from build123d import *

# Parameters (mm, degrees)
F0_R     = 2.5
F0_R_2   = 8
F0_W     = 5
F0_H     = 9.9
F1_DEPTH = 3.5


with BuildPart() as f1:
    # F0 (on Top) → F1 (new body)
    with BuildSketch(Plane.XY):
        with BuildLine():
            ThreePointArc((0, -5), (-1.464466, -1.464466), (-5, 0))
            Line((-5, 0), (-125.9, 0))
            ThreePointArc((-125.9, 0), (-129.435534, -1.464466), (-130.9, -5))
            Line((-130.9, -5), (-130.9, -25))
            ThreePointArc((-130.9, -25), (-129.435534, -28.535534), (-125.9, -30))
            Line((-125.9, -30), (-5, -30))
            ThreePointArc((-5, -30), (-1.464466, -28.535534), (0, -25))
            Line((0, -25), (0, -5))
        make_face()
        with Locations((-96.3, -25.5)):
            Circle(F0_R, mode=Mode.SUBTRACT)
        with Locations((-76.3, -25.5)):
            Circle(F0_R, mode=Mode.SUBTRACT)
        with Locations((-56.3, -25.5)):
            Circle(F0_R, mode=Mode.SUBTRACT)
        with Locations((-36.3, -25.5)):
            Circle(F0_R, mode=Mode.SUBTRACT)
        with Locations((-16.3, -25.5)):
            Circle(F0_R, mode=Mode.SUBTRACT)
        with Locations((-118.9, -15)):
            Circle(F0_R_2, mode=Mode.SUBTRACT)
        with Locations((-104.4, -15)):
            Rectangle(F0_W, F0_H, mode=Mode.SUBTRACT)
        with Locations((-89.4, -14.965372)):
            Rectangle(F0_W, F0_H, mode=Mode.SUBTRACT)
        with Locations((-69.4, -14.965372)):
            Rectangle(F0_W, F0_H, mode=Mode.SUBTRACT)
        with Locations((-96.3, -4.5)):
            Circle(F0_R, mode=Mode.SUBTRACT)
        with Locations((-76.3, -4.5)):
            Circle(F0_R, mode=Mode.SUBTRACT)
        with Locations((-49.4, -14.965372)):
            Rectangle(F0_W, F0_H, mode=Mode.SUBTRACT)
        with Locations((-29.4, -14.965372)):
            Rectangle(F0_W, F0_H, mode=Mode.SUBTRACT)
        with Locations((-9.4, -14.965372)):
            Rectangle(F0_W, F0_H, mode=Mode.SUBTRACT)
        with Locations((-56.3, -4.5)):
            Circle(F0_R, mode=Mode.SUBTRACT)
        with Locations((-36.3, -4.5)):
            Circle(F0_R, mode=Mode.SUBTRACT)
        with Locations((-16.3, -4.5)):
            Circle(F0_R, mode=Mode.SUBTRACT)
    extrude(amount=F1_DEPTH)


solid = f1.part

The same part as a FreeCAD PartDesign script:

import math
import FreeCAD as App
import Part
import Sketcher

V = App.Vector

doc = App.newDocument("Part")
body = doc.addObject("PartDesign::Body", "Body")

sketch1 = body.newObject("Sketcher::SketchObject", "Sketch")
sketch1.AttachmentSupport = (doc.getObject("XY_Plane"), [""])
sketch1.MapMode = "FlatFace"
sketch1.addGeometry([
    Part.ArcOfCircle(Part.Circle(V(-5, -5, 0), V(0, 0, 1), 5), math.radians(-0.000004), math.radians(90.000004)),
    Part.LineSegment(V(-5, 0, 0), V(-125.9, 0, 0)),
    Part.ArcOfCircle(Part.Circle(V(-125.9, -5, 0), V(0, 0, 1), 5), math.radians(89.999996), math.radians(180.000004)),
    Part.LineSegment(V(-130.9, -5, 0), V(-130.9, -25, 0)),
    Part.ArcOfCircle(Part.Circle(V(-125.9, -25, 0), V(0, 0, 1), 5), math.radians(179.999996), math.radians(270.000004)),
    Part.LineSegment(V(-125.9, -30, 0), V(-5, -30, 0)),
    Part.ArcOfCircle(Part.Circle(V(-5, -25, 0), V(0, 0, 1), 5), math.radians(-90.000004), math.radians(0.000004)),
    Part.LineSegment(V(0, -25, 0), V(0, -5, 0)),
    Part.Circle(V(-96.3, -25.5, 0), V(0, 0, 1), 2.5),
    Part.Circle(V(-76.3, -25.5, 0), V(0, 0, 1), 2.5),
    Part.Circle(V(-56.3, -25.5, 0), V(0, 0, 1), 2.5),
    Part.Circle(V(-36.3, -25.5, 0), V(0, 0, 1), 2.5),
    Part.Circle(V(-16.3, -25.5, 0), V(0, 0, 1), 2.5),
    Part.Circle(V(-118.9, -15, 0), V(0, 0, 1), 8),
    Part.LineSegment(V(-101.9, -19.95, 0), V(-106.9, -19.95, 0)),
    Part.LineSegment(V(-106.9, -19.95, 0), V(-106.9, -10.05, 0)),
    Part.LineSegment(V(-106.9, -10.05, 0), V(-101.9, -10.05, 0)),
    Part.LineSegment(V(-101.9, -10.05, 0), V(-101.9, -19.95, 0)),
    Part.LineSegment(V(-86.9, -19.915372, 0), V(-91.9, -19.915372, 0)),
    Part.LineSegment(V(-91.9, -19.915372, 0), V(-91.9, -10.015372, 0)),
    Part.LineSegment(V(-91.9, -10.015372, 0), V(-86.9, -10.015372, 0)),
    Part.LineSegment(V(-86.9, -10.015372, 0), V(-86.9, -19.915372, 0)),
    Part.LineSegment(V(-66.9, -19.915372, 0), V(-71.9, -19.915372, 0)),
    Part.LineSegment(V(-71.9, -19.915372, 0), V(-71.9, -10.015372, 0)),
    Part.LineSegment(V(-71.9, -10.015372, 0), V(-66.9, -10.015372, 0)),
    Part.LineSegment(V(-66.9, -10.015372, 0), V(-66.9, -19.915372, 0)),
    Part.Circle(V(-96.3, -4.5, 0), V(0, 0, 1), 2.5),
    Part.Circle(V(-76.3, -4.5, 0), V(0, 0, 1), 2.5),
    Part.LineSegment(V(-46.9, -19.915372, 0), V(-51.9, -19.915372, 0)),
    Part.LineSegment(V(-51.9, -19.915372, 0), V(-51.9, -10.015372, 0)),
    Part.LineSegment(V(-51.9, -10.015372, 0), V(-46.9, -10.015372, 0)),
    Part.LineSegment(V(-46.9, -10.015372, 0), V(-46.9, -19.915372, 0)),
    Part.LineSegment(V(-26.9, -19.915372, 0), V(-31.9, -19.915372, 0)),
    Part.LineSegment(V(-31.9, -19.915372, 0), V(-31.9, -10.015372, 0)),
    Part.LineSegment(V(-31.9, -10.015372, 0), V(-26.9, -10.015372, 0)),
    Part.LineSegment(V(-26.9, -10.015372, 0), V(-26.9, -19.915372, 0)),
    Part.LineSegment(V(-6.9, -19.915372, 0), V(-11.9, -19.915372, 0)),
    Part.LineSegment(V(-11.9, -19.915372, 0), V(-11.9, -10.015372, 0)),
    Part.LineSegment(V(-11.9, -10.015372, 0), V(-6.9, -10.015372, 0)),
    Part.LineSegment(V(-6.9, -10.015372, 0), V(-6.9, -19.915372, 0)),
    Part.Circle(V(-56.3, -4.5, 0), V(0, 0, 1), 2.5),
    Part.Circle(V(-36.3, -4.5, 0), V(0, 0, 1), 2.5),
    Part.Circle(V(-16.3, -4.5, 0), V(0, 0, 1), 2.5),
], False)
sketch1.addConstraint([
    Sketcher.Constraint("Tangent", 0, 2, 1, 1),
    Sketcher.Constraint("Tangent", 1, 2, 2, 1),
    Sketcher.Constraint("Tangent", 2, 2, 3, 1),
    Sketcher.Constraint("Tangent", 3, 2, 4, 1),
    Sketcher.Constraint("Tangent", 4, 2, 5, 1),
    Sketcher.Constraint("Tangent", 5, 2, 6, 1),
    Sketcher.Constraint("Tangent", 6, 2, 7, 1),
    Sketcher.Constraint("Tangent", 7, 2, 0, 1),
    Sketcher.Constraint("Coincident", 14, 2, 15, 1),
    Sketcher.Constraint("Coincident", 15, 2, 16, 1),
    Sketcher.Constraint("Coincident", 16, 2, 17, 1),
    Sketcher.Constraint("Coincident", 17, 2, 14, 1),
    Sketcher.Constraint("Coincident", 18, 2, 19, 1),
    Sketcher.Constraint("Coincident", 19, 2, 20, 1),
    Sketcher.Constraint("Coincident", 20, 2, 21, 1),
    Sketcher.Constraint("Coincident", 21, 2, 18, 1),
    Sketcher.Constraint("Coincident", 22, 2, 23, 1),
    Sketcher.Constraint("Coincident", 23, 2, 24, 1),
    Sketcher.Constraint("Coincident", 24, 2, 25, 1),
    Sketcher.Constraint("Coincident", 25, 2, 22, 1),
    Sketcher.Constraint("Coincident", 28, 2, 29, 1),
    Sketcher.Constraint("Coincident", 29, 2, 30, 1),
    Sketcher.Constraint("Coincident", 30, 2, 31, 1),
    Sketcher.Constraint("Coincident", 31, 2, 28, 1),
    Sketcher.Constraint("Coincident", 32, 2, 33, 1),
    Sketcher.Constraint("Coincident", 33, 2, 34, 1),
    Sketcher.Constraint("Coincident", 34, 2, 35, 1),
    Sketcher.Constraint("Coincident", 35, 2, 32, 1),
    Sketcher.Constraint("Coincident", 36, 2, 37, 1),
    Sketcher.Constraint("Coincident", 37, 2, 38, 1),
    Sketcher.Constraint("Coincident", 38, 2, 39, 1),
    Sketcher.Constraint("Coincident", 39, 2, 36, 1),
    Sketcher.Constraint("Horizontal", 1),
    Sketcher.Constraint("Vertical", 3),
    Sketcher.Constraint("Horizontal", 5),
    Sketcher.Constraint("Vertical", 7),
    Sketcher.Constraint("Horizontal", 14),
    Sketcher.Constraint("Vertical", 15),
    Sketcher.Constraint("Horizontal", 16),
    Sketcher.Constraint("Vertical", 17),
    Sketcher.Constraint("Horizontal", 18),
    Sketcher.Constraint("Vertical", 19),
    Sketcher.Constraint("Horizontal", 20),
    Sketcher.Constraint("Vertical", 21),
    Sketcher.Constraint("Horizontal", 22),
    Sketcher.Constraint("Vertical", 23),
    Sketcher.Constraint("Horizontal", 24),
    Sketcher.Constraint("Vertical", 25),
    Sketcher.Constraint("Horizontal", 28),
    Sketcher.Constraint("Vertical", 29),
    Sketcher.Constraint("Horizontal", 30),
    Sketcher.Constraint("Vertical", 31),
    Sketcher.Constraint("Horizontal", 32),
    Sketcher.Constraint("Vertical", 33),
    Sketcher.Constraint("Horizontal", 34),
    Sketcher.Constraint("Vertical", 35),
    Sketcher.Constraint("Horizontal", 36),
    Sketcher.Constraint("Vertical", 37),
    Sketcher.Constraint("Horizontal", 38),
    Sketcher.Constraint("Vertical", 39),
    Sketcher.Constraint("Equal", 0, 2),
    Sketcher.Constraint("Equal", 2, 4),
    Sketcher.Constraint("Equal", 4, 6),
    Sketcher.Constraint("Equal", 8, 9),
    Sketcher.Constraint("Equal", 9, 10),
    Sketcher.Constraint("Equal", 10, 11),
    Sketcher.Constraint("Equal", 11, 12),
    Sketcher.Constraint("Equal", 12, 26),
    Sketcher.Constraint("Equal", 26, 27),
    Sketcher.Constraint("Equal", 27, 40),
    Sketcher.Constraint("Equal", 40, 41),
    Sketcher.Constraint("Equal", 41, 42),
    Sketcher.Constraint("PointOnObject", 0, 2, -1),
    Sketcher.Constraint("PointOnObject", 6, 2, -2),
    Sketcher.Constraint("Horizontal", 8, 3, 9, 3),
    Sketcher.Constraint("Horizontal", 9, 3, 10, 3),
    Sketcher.Constraint("Horizontal", 10, 3, 11, 3),
    Sketcher.Constraint("Horizontal", 11, 3, 12, 3),
    Sketcher.Constraint("Horizontal", 26, 3, 27, 3),
    Sketcher.Constraint("Horizontal", 27, 3, 40, 3),
    Sketcher.Constraint("Horizontal", 40, 3, 41, 3),
    Sketcher.Constraint("Horizontal", 41, 3, 42, 3),
    Sketcher.Constraint("Horizontal", 21, 2, 22, 2),
    Sketcher.Constraint("Horizontal", 20, 2, 23, 2),
    Sketcher.Constraint("Horizontal", 25, 2, 28, 2),
    Sketcher.Constraint("Horizontal", 24, 2, 29, 2),
    Sketcher.Constraint("Horizontal", 31, 2, 32, 2),
    Sketcher.Constraint("Horizontal", 30, 2, 33, 2),
    Sketcher.Constraint("Horizontal", 35, 2, 36, 2),
    Sketcher.Constraint("Horizontal", 34, 2, 37, 2),
    Sketcher.Constraint("Vertical", 8, 3, 26, 3),
    Sketcher.Constraint("Vertical", 9, 3, 27, 3),
    Sketcher.Constraint("Vertical", 10, 3, 40, 3),
    Sketcher.Constraint("Vertical", 11, 3, 41, 3),
    Sketcher.Constraint("Vertical", 12, 3, 42, 3),
    Sketcher.Constraint("Equal", 16, 18),
    Sketcher.Constraint("Equal", 20, 22),
    Sketcher.Constraint("Equal", 24, 28),
    Sketcher.Constraint("Equal", 30, 32),
    Sketcher.Constraint("Equal", 34, 36),
    Sketcher.Constraint("Equal", 17, 19),
    Sketcher.Constraint("Diameter", 8, 5.0),
    Sketcher.Constraint("Diameter", 13, 16.0),
    Sketcher.Constraint("Radius", 0, 5.0),
    Sketcher.Constraint("DistanceX", 14, 2, 14, 1, 5.0),
    Sketcher.Constraint("DistanceY", 3, 2, 3, 1, 20.0),
    Sketcher.Constraint("DistanceX", 1, 2, 1, 1, 120.9),
    Sketcher.Constraint("DistanceY", 15, 1, 15, 2, 9.9),
    Sketcher.Constraint("DistanceY", 13, 3, -1, 1, 15.0),
    Sketcher.Constraint("DistanceX", 8, 3, 9, 3, 20.0),
    Sketcher.Constraint("DistanceX", 9, 3, 10, 3, 20.0),
    Sketcher.Constraint("DistanceX", 10, 3, 11, 3, 20.0),
    Sketcher.Constraint("DistanceX", 11, 3, 12, 3, 20.0),
    Sketcher.Constraint("DistanceX", 2, 3, 13, 3, 7.0),
    Sketcher.Constraint("DistanceY", 8, 3, 26, 3, 21.0),
    Sketcher.Constraint("DistanceX", 13, 3, 14, 2, 12.0),
    Sketcher.Constraint("DistanceX", 17, 2, 18, 2, 10.0),
    Sketcher.Constraint("DistanceX", 21, 2, 22, 2, 15.0),
    Sketcher.Constraint("DistanceX", 25, 2, 28, 2, 15.0),
    Sketcher.Constraint("DistanceX", 31, 2, 32, 2, 15.0),
    Sketcher.Constraint("DistanceX", 35, 2, 36, 2, 15.0),
    Sketcher.Constraint("DistanceX", 8, 3, -1, 1, 96.3),
    Sketcher.Constraint("DistanceY", 8, 3, -1, 1, 25.5),
    Sketcher.Constraint("DistanceY", 14, 2, -1, 1, 19.95),
    Sketcher.Constraint("DistanceY", 19, 2, -1, 1, 10.015372),
])
pad1 = body.newObject("PartDesign::Pad", "Pad")
pad1.Profile = sketch1
pad1.Length = 3.5

doc.recompute()
